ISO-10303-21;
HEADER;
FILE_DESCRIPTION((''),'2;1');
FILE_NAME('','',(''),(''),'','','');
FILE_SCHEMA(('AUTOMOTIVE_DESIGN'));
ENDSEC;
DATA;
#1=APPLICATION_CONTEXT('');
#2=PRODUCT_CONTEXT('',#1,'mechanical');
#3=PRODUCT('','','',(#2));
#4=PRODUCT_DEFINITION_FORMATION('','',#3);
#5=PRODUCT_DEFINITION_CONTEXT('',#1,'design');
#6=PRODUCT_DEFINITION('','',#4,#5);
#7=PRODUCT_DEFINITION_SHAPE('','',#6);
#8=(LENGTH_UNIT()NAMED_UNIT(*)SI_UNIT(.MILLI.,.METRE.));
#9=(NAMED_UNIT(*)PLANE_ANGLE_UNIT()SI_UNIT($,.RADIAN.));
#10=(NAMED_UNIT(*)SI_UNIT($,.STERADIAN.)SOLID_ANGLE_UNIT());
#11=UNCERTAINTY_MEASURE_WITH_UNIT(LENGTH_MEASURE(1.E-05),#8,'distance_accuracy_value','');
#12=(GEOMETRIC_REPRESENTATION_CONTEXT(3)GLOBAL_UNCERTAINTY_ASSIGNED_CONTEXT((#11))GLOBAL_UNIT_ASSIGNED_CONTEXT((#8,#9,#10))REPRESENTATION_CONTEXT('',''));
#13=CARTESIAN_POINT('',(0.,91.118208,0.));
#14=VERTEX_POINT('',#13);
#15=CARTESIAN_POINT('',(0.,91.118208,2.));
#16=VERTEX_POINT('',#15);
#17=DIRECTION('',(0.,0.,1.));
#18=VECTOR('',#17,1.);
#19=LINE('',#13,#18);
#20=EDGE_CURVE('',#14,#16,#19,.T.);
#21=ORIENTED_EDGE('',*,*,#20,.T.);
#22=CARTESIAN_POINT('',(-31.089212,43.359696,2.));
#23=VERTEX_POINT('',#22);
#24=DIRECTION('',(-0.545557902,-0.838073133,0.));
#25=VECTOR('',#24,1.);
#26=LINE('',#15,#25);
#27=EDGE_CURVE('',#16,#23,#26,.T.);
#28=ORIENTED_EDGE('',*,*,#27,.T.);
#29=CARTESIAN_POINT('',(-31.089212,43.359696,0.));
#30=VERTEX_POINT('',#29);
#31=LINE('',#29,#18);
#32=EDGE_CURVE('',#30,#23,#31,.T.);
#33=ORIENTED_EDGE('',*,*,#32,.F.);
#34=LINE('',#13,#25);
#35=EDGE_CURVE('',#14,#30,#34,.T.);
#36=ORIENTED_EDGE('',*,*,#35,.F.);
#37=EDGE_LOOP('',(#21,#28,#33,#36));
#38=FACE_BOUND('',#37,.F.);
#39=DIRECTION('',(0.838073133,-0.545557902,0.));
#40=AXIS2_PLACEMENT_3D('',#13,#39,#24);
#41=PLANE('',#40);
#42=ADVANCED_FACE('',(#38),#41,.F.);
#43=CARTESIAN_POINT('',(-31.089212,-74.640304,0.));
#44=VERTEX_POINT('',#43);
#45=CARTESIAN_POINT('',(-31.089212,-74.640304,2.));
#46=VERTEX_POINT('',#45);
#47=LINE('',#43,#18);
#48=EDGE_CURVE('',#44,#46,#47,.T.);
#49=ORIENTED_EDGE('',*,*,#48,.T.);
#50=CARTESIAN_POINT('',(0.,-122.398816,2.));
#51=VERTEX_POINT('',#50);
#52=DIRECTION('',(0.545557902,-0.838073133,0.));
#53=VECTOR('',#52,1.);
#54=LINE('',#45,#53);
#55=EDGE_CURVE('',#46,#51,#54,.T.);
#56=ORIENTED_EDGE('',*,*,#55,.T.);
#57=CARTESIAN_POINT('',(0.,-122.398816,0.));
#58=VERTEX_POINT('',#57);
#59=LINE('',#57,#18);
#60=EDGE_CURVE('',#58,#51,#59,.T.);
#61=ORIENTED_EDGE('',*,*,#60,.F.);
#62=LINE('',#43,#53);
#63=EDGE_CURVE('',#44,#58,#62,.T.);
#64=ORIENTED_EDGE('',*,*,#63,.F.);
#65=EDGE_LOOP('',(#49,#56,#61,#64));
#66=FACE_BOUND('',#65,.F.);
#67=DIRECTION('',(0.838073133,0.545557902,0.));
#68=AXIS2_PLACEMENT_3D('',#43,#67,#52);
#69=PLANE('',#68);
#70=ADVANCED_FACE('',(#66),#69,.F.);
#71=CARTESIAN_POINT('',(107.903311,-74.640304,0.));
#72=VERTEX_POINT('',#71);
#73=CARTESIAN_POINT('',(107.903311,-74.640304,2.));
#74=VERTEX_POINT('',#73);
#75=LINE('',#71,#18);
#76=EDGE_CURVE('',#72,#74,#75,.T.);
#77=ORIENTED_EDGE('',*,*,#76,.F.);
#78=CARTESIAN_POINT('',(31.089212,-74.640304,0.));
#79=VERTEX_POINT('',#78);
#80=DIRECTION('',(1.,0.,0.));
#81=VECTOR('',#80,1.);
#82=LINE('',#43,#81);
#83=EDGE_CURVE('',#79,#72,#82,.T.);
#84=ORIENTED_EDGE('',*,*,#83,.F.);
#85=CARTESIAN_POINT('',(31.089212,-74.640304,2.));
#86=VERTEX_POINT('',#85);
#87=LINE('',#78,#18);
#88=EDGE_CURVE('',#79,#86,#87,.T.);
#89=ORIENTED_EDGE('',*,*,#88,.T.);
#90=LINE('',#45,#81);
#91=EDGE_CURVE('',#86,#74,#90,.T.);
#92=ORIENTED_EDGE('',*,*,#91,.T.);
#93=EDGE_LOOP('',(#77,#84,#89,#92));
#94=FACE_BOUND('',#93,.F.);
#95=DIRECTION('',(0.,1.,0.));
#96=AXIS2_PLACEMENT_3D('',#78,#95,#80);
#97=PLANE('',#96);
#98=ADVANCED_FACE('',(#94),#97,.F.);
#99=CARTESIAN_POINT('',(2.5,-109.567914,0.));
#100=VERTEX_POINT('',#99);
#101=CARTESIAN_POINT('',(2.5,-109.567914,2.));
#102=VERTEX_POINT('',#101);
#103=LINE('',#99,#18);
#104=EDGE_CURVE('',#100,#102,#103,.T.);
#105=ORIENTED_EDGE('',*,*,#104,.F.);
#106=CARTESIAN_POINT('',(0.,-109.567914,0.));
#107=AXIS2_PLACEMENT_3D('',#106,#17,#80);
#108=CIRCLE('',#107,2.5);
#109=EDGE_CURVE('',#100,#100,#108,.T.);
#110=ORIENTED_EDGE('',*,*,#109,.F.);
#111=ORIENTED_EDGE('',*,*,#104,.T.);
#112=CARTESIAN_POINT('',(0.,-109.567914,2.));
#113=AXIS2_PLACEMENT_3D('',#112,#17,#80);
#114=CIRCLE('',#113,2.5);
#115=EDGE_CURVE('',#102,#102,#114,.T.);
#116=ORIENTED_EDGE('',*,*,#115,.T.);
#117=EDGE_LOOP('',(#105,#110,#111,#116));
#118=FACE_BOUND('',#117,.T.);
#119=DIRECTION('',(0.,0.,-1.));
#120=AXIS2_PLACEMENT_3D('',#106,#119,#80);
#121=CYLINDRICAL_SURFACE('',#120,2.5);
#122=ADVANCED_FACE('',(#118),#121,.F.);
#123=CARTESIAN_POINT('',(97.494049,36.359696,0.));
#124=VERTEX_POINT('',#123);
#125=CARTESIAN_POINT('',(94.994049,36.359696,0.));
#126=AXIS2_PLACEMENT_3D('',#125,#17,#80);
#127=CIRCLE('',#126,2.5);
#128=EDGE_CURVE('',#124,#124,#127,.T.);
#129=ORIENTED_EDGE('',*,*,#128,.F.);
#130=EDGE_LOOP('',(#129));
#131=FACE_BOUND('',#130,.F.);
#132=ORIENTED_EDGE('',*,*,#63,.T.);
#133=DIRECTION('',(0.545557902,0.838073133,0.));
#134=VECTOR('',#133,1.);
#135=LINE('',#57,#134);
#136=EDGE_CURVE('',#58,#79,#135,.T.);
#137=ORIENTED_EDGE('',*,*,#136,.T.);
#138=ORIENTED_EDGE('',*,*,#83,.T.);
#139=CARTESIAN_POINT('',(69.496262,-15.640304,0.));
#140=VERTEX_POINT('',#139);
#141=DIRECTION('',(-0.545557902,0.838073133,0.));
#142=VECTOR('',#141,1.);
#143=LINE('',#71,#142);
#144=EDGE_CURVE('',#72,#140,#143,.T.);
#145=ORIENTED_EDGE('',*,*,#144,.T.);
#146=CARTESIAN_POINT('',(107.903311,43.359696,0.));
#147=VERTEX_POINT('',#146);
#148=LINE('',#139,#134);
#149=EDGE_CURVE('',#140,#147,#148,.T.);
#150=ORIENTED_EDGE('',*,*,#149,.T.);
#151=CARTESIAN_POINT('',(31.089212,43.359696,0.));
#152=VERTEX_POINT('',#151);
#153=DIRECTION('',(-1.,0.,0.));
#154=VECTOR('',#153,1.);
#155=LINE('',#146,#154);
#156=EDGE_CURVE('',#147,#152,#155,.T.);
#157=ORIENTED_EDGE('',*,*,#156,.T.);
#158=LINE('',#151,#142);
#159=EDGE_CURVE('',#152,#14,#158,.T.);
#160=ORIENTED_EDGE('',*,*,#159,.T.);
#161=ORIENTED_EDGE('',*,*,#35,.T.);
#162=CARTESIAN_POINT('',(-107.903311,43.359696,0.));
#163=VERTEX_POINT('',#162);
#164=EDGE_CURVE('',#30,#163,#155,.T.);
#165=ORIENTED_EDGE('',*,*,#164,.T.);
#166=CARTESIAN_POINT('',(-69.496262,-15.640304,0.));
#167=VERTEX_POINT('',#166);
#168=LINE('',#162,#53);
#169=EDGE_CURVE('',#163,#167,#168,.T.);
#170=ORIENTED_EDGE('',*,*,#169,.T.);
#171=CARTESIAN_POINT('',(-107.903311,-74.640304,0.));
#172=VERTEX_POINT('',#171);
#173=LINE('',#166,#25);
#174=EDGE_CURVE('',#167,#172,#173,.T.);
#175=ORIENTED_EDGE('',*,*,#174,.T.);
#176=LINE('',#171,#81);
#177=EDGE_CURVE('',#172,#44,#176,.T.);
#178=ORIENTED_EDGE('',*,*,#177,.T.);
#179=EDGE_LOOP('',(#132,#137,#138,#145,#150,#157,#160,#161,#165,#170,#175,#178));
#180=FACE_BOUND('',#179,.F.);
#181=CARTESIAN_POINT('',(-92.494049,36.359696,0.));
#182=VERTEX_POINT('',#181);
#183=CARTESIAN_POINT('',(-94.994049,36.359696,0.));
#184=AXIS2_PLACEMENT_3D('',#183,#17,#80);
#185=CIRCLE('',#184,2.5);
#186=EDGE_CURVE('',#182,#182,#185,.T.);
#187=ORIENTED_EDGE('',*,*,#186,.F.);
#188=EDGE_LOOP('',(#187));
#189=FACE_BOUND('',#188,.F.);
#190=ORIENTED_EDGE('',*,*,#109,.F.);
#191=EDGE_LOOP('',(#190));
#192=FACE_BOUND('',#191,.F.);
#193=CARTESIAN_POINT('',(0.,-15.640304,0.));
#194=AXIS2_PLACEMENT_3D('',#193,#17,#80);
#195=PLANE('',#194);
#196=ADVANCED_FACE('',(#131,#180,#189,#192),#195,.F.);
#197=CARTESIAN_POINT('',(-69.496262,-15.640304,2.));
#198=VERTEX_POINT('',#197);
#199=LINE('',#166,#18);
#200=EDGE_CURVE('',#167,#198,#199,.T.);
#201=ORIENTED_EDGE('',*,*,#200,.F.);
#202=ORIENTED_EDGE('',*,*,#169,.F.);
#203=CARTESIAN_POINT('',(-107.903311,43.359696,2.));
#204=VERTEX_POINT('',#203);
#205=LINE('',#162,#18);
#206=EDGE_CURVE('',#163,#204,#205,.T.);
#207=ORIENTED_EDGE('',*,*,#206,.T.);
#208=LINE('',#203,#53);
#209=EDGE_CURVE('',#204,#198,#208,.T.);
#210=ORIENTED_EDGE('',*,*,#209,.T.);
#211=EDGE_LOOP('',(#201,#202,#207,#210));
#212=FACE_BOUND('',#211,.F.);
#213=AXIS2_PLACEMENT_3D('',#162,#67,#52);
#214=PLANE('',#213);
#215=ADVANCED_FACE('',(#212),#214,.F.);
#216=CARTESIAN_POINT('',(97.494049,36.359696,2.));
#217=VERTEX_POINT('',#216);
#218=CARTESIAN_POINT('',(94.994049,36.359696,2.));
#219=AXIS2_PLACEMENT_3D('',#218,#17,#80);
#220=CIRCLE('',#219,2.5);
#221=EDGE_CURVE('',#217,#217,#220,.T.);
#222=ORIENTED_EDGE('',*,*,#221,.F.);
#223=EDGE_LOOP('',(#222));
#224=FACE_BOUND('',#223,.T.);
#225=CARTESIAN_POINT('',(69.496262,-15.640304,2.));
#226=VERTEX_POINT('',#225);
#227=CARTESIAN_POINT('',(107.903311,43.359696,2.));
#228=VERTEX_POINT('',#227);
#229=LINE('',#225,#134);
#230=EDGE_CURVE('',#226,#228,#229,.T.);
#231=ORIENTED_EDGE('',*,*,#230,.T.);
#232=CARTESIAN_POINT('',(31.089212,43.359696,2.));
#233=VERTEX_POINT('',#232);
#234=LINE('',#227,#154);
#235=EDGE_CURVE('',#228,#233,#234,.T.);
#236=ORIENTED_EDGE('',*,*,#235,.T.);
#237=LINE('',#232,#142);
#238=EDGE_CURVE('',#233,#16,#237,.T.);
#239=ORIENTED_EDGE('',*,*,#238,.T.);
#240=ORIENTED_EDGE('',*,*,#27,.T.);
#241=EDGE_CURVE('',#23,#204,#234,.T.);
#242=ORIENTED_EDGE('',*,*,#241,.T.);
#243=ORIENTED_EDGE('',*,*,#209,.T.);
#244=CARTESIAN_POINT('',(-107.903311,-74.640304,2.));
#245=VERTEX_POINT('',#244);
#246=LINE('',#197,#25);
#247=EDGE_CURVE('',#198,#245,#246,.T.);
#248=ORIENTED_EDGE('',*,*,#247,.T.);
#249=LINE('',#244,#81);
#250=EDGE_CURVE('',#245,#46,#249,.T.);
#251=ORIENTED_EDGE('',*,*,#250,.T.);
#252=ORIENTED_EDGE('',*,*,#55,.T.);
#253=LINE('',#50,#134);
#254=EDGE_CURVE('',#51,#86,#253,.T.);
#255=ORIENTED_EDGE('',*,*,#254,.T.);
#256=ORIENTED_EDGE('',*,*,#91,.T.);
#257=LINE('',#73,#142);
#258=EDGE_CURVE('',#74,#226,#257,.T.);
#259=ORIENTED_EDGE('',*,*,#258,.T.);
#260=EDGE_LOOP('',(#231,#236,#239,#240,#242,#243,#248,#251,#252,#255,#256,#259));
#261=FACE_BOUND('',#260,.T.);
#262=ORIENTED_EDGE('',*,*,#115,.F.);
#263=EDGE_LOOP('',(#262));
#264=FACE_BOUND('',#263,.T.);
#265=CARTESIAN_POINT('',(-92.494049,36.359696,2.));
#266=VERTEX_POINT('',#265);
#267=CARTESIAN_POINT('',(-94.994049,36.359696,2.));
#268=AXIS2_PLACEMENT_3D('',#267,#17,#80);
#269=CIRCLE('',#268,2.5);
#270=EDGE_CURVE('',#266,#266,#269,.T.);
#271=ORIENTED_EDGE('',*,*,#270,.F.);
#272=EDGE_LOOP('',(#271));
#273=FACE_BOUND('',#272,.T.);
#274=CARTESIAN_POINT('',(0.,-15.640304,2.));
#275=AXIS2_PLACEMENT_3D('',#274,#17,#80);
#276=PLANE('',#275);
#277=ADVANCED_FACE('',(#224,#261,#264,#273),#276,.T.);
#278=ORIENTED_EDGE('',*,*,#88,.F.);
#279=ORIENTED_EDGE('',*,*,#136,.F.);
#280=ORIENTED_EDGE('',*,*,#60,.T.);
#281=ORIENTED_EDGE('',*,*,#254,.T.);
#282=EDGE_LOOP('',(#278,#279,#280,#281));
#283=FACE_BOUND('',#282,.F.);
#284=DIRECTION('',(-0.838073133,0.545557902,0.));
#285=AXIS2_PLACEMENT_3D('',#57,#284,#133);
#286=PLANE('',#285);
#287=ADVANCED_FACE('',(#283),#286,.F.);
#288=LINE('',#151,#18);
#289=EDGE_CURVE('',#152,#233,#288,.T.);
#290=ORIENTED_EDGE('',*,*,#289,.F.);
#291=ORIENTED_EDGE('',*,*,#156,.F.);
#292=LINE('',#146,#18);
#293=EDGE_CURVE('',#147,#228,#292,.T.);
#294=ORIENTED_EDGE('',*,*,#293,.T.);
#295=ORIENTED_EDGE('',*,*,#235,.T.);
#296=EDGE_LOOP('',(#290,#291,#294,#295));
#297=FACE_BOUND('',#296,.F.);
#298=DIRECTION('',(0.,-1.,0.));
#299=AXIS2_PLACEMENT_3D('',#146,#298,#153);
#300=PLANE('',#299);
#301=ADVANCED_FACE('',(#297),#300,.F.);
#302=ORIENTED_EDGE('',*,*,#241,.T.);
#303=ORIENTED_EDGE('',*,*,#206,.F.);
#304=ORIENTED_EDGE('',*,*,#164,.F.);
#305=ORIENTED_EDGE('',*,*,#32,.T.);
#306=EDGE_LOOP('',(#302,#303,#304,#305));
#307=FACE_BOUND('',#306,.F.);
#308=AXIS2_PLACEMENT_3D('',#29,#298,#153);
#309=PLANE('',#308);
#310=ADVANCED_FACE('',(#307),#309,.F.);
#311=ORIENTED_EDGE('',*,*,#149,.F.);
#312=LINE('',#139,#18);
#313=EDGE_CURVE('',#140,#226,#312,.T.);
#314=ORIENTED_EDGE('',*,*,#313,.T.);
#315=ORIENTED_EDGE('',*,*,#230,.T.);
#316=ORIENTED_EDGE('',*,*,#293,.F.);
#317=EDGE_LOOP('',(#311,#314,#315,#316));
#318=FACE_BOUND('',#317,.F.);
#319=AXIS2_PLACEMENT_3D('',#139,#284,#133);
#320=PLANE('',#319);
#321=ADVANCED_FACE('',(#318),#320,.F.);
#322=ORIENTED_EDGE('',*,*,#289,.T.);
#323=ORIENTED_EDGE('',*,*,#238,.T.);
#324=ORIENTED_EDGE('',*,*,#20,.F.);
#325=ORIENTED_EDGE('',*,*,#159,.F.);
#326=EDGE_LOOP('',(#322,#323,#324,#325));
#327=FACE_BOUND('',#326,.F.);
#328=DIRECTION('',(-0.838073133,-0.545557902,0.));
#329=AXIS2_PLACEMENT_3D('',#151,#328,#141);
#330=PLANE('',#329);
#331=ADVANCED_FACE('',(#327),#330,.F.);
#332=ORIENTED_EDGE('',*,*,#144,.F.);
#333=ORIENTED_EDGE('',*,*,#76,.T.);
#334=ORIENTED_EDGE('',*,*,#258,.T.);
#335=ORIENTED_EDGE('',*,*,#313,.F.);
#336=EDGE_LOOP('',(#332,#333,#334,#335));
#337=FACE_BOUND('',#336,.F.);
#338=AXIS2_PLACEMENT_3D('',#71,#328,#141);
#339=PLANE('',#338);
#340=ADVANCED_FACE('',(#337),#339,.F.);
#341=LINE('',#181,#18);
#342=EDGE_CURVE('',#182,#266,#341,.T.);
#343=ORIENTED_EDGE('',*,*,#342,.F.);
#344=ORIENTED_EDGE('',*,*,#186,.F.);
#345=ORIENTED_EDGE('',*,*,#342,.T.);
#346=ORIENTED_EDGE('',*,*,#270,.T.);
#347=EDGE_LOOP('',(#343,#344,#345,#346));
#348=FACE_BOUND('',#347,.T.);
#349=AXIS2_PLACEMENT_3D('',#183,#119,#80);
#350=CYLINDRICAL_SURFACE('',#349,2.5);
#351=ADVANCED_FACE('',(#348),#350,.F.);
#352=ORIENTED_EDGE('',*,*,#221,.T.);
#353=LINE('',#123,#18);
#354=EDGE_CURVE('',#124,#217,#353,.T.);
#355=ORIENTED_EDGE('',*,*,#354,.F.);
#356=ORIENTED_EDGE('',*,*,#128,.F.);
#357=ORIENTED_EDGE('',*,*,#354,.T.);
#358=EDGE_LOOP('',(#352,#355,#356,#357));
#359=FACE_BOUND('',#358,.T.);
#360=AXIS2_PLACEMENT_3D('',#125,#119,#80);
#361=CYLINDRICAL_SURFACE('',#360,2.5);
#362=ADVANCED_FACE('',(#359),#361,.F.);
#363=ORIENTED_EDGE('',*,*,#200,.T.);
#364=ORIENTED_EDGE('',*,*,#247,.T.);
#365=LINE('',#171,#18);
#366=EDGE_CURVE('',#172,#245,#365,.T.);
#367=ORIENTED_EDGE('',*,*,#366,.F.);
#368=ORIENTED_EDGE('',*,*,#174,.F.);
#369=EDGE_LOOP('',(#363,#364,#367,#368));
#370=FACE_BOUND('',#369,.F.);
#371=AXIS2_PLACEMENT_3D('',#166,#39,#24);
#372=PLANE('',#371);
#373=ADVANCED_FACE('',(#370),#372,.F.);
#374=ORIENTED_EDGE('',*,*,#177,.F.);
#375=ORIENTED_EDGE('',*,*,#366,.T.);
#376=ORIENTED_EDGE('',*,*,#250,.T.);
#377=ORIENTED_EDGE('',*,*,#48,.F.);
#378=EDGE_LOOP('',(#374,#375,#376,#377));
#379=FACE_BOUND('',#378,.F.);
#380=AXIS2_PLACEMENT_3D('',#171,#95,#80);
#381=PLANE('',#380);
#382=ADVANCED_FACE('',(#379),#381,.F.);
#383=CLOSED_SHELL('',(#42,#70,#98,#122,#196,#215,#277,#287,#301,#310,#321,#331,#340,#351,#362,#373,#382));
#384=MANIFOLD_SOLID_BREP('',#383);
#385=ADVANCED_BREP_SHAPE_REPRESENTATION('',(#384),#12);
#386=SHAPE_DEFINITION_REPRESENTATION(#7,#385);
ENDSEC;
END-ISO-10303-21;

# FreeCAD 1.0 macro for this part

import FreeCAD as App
import Part
import Sketcher
from FreeCAD import Vector
Q = App.Units.Quantity

doc = App.newDocument("Part")
body = doc.addObject("PartDesign::Body", "Body")

sketch1 = body.newObject("Sketcher::SketchObject", "Sketch")
sketch1.AttachmentSupport = (doc.getObject("XY_Plane"), [""])
sketch1.MapMode = "FlatFace"
sketch1.addGeometry([
    Part.LineSegment(Vector(-107.9, 43.4, 0), Vector(-69.5, -15.6, 0)),
    Part.LineSegment(Vector(-69.5, -15.6, 0), Vector(-107.9, -74.6, 0)),
    Part.LineSegment(Vector(-107.9, -74.6, 0), Vector(-31.1, -74.6, 0)),
    Part.LineSegment(Vector(-31.1, -74.6, 0), Vector(0, -122.4, 0)),
    Part.LineSegment(Vector(0, -122.4, 0), Vector(31.1, -74.6, 0)),
    Part.LineSegment(Vector(31.1, -74.6, 0), Vector(107.9, -74.6, 0)),
    Part.LineSegment(Vector(107.9, -74.6, 0), Vector(69.5, -15.6, 0)),
    Part.LineSegment(Vector(69.5, -15.6, 0), Vector(107.9, 43.4, 0)),
    Part.LineSegment(Vector(107.9, 43.4, 0), Vector(31.1, 43.4, 0)),
    Part.LineSegment(Vector(31.1, 43.4, 0), Vector(0, 91.1, 0)),
    Part.LineSegment(Vector(0, 91.1, 0), Vector(-31.1, 43.4, 0)),
    Part.LineSegment(Vector(-31.1, 43.4, 0), Vector(-107.9, 43.4, 0)),
    Part.Circle(Vector(0, -109.6, 0), Vector(0, 0, 1), 2.5),
    Part.Circle(Vector(-95, 36.4, 0), Vector(0, 0, 1), 2.5),
    Part.Circle(Vector(95, 36.4, 0), Vector(0, 0, 1), 2.5),
], False)
sketch1.addConstraint([
    Sketcher.Constraint("Coincident", 0, 2, 1, 1),
    Sketcher.Constraint("Coincident", 1, 2, 2, 1),
    Sketcher.Constraint("Coincident", 2, 2, 3, 1),
    Sketcher.Constraint("Coincident", 3, 2, 4, 1),
    Sketcher.Constraint("Coincident", 4, 2, 5, 1),
    Sketcher.Constraint("Coincident", 5, 2, 6, 1),
    Sketcher.Constraint("Coincident", 6, 2, 7, 1),
    Sketcher.Constraint("Coincident", 7, 2, 8, 1),
    Sketcher.Constraint("Coincident", 8, 2, 9, 1),
    Sketcher.Constraint("Coincident", 9, 2, 10, 1),
    Sketcher.Constraint("Coincident", 10, 2, 11, 1),
    Sketcher.Constraint("Coincident", 11, 2, 0, 1),
    Sketcher.Constraint("Horizontal", 2),
    Sketcher.Constraint("Horizontal", 5),
    Sketcher.Constraint("Horizontal", 8),
    Sketcher.Constraint("Horizontal", 11),
    Sketcher.Constraint("Equal", 12, 13),
    Sketcher.Constraint("Equal", 13, 14),
    Sketcher.Constraint("Symmetric", 13, 3, 14, 3, -2),
    Sketcher.Constraint("Symmetric", 2, 2, 4, 2, -2),
    Sketcher.Constraint("Symmetric", 0, 2, 6, 2, -2),
    Sketcher.Constraint("Symmetric", 8, 2, 10, 2, -2),
    Sketcher.Constraint("PointOnObject", 12, 3, -2),
    Sketcher.Constraint("PointOnObject", 3, 2, -2),
    Sketcher.Constraint("PointOnObject", 9, 2, -2),
    Sketcher.Constraint("Parallel", 0, 3),
    Sketcher.Constraint("Parallel", 1, 4),
    Sketcher.Constraint("Parallel", 3, 6),
    Sketcher.Constraint("Parallel", 4, 7),
    Sketcher.Constraint("Parallel", 6, 9),
    Sketcher.Constraint("Vertical", 5, 2, 7, 2),
    Sketcher.Constraint("Vertical", 4, 2, 8, 2),
    Sketcher.Constraint("Diameter", 12, Q("5 mm")),
    Sketcher.Constraint("DistanceY", 0, 2, 13, 3, Q("52 mm")),
    Sketcher.Constraint("DistanceY", 1, 2, 0, 2, Q("59 mm")),
    Sketcher.Constraint("DistanceX", 2, 1, 2, 2, Q("76.814099 mm")),
    Sketcher.Constraint("DistanceX", 13, 3, 14, 3, Q("189.988099 mm")),
    Sketcher.Constraint("Distance", 3, Q("56.986091 mm")),
    Sketcher.Constraint("DistanceX", 0, 2, -1, 1, Q("69.496262 mm")),
    Sketcher.Constraint("DistanceY", 12, 3, 13, 3, Q("145.92761 mm")),
    Sketcher.Constraint("DistanceY", 12, 3, -1, 1, Q("109.567914 mm")),
])
pad1 = body.newObject("PartDesign::Pad", "Pad")
pad1.Profile = sketch1
pad1.Length = 2

doc.recompute()
